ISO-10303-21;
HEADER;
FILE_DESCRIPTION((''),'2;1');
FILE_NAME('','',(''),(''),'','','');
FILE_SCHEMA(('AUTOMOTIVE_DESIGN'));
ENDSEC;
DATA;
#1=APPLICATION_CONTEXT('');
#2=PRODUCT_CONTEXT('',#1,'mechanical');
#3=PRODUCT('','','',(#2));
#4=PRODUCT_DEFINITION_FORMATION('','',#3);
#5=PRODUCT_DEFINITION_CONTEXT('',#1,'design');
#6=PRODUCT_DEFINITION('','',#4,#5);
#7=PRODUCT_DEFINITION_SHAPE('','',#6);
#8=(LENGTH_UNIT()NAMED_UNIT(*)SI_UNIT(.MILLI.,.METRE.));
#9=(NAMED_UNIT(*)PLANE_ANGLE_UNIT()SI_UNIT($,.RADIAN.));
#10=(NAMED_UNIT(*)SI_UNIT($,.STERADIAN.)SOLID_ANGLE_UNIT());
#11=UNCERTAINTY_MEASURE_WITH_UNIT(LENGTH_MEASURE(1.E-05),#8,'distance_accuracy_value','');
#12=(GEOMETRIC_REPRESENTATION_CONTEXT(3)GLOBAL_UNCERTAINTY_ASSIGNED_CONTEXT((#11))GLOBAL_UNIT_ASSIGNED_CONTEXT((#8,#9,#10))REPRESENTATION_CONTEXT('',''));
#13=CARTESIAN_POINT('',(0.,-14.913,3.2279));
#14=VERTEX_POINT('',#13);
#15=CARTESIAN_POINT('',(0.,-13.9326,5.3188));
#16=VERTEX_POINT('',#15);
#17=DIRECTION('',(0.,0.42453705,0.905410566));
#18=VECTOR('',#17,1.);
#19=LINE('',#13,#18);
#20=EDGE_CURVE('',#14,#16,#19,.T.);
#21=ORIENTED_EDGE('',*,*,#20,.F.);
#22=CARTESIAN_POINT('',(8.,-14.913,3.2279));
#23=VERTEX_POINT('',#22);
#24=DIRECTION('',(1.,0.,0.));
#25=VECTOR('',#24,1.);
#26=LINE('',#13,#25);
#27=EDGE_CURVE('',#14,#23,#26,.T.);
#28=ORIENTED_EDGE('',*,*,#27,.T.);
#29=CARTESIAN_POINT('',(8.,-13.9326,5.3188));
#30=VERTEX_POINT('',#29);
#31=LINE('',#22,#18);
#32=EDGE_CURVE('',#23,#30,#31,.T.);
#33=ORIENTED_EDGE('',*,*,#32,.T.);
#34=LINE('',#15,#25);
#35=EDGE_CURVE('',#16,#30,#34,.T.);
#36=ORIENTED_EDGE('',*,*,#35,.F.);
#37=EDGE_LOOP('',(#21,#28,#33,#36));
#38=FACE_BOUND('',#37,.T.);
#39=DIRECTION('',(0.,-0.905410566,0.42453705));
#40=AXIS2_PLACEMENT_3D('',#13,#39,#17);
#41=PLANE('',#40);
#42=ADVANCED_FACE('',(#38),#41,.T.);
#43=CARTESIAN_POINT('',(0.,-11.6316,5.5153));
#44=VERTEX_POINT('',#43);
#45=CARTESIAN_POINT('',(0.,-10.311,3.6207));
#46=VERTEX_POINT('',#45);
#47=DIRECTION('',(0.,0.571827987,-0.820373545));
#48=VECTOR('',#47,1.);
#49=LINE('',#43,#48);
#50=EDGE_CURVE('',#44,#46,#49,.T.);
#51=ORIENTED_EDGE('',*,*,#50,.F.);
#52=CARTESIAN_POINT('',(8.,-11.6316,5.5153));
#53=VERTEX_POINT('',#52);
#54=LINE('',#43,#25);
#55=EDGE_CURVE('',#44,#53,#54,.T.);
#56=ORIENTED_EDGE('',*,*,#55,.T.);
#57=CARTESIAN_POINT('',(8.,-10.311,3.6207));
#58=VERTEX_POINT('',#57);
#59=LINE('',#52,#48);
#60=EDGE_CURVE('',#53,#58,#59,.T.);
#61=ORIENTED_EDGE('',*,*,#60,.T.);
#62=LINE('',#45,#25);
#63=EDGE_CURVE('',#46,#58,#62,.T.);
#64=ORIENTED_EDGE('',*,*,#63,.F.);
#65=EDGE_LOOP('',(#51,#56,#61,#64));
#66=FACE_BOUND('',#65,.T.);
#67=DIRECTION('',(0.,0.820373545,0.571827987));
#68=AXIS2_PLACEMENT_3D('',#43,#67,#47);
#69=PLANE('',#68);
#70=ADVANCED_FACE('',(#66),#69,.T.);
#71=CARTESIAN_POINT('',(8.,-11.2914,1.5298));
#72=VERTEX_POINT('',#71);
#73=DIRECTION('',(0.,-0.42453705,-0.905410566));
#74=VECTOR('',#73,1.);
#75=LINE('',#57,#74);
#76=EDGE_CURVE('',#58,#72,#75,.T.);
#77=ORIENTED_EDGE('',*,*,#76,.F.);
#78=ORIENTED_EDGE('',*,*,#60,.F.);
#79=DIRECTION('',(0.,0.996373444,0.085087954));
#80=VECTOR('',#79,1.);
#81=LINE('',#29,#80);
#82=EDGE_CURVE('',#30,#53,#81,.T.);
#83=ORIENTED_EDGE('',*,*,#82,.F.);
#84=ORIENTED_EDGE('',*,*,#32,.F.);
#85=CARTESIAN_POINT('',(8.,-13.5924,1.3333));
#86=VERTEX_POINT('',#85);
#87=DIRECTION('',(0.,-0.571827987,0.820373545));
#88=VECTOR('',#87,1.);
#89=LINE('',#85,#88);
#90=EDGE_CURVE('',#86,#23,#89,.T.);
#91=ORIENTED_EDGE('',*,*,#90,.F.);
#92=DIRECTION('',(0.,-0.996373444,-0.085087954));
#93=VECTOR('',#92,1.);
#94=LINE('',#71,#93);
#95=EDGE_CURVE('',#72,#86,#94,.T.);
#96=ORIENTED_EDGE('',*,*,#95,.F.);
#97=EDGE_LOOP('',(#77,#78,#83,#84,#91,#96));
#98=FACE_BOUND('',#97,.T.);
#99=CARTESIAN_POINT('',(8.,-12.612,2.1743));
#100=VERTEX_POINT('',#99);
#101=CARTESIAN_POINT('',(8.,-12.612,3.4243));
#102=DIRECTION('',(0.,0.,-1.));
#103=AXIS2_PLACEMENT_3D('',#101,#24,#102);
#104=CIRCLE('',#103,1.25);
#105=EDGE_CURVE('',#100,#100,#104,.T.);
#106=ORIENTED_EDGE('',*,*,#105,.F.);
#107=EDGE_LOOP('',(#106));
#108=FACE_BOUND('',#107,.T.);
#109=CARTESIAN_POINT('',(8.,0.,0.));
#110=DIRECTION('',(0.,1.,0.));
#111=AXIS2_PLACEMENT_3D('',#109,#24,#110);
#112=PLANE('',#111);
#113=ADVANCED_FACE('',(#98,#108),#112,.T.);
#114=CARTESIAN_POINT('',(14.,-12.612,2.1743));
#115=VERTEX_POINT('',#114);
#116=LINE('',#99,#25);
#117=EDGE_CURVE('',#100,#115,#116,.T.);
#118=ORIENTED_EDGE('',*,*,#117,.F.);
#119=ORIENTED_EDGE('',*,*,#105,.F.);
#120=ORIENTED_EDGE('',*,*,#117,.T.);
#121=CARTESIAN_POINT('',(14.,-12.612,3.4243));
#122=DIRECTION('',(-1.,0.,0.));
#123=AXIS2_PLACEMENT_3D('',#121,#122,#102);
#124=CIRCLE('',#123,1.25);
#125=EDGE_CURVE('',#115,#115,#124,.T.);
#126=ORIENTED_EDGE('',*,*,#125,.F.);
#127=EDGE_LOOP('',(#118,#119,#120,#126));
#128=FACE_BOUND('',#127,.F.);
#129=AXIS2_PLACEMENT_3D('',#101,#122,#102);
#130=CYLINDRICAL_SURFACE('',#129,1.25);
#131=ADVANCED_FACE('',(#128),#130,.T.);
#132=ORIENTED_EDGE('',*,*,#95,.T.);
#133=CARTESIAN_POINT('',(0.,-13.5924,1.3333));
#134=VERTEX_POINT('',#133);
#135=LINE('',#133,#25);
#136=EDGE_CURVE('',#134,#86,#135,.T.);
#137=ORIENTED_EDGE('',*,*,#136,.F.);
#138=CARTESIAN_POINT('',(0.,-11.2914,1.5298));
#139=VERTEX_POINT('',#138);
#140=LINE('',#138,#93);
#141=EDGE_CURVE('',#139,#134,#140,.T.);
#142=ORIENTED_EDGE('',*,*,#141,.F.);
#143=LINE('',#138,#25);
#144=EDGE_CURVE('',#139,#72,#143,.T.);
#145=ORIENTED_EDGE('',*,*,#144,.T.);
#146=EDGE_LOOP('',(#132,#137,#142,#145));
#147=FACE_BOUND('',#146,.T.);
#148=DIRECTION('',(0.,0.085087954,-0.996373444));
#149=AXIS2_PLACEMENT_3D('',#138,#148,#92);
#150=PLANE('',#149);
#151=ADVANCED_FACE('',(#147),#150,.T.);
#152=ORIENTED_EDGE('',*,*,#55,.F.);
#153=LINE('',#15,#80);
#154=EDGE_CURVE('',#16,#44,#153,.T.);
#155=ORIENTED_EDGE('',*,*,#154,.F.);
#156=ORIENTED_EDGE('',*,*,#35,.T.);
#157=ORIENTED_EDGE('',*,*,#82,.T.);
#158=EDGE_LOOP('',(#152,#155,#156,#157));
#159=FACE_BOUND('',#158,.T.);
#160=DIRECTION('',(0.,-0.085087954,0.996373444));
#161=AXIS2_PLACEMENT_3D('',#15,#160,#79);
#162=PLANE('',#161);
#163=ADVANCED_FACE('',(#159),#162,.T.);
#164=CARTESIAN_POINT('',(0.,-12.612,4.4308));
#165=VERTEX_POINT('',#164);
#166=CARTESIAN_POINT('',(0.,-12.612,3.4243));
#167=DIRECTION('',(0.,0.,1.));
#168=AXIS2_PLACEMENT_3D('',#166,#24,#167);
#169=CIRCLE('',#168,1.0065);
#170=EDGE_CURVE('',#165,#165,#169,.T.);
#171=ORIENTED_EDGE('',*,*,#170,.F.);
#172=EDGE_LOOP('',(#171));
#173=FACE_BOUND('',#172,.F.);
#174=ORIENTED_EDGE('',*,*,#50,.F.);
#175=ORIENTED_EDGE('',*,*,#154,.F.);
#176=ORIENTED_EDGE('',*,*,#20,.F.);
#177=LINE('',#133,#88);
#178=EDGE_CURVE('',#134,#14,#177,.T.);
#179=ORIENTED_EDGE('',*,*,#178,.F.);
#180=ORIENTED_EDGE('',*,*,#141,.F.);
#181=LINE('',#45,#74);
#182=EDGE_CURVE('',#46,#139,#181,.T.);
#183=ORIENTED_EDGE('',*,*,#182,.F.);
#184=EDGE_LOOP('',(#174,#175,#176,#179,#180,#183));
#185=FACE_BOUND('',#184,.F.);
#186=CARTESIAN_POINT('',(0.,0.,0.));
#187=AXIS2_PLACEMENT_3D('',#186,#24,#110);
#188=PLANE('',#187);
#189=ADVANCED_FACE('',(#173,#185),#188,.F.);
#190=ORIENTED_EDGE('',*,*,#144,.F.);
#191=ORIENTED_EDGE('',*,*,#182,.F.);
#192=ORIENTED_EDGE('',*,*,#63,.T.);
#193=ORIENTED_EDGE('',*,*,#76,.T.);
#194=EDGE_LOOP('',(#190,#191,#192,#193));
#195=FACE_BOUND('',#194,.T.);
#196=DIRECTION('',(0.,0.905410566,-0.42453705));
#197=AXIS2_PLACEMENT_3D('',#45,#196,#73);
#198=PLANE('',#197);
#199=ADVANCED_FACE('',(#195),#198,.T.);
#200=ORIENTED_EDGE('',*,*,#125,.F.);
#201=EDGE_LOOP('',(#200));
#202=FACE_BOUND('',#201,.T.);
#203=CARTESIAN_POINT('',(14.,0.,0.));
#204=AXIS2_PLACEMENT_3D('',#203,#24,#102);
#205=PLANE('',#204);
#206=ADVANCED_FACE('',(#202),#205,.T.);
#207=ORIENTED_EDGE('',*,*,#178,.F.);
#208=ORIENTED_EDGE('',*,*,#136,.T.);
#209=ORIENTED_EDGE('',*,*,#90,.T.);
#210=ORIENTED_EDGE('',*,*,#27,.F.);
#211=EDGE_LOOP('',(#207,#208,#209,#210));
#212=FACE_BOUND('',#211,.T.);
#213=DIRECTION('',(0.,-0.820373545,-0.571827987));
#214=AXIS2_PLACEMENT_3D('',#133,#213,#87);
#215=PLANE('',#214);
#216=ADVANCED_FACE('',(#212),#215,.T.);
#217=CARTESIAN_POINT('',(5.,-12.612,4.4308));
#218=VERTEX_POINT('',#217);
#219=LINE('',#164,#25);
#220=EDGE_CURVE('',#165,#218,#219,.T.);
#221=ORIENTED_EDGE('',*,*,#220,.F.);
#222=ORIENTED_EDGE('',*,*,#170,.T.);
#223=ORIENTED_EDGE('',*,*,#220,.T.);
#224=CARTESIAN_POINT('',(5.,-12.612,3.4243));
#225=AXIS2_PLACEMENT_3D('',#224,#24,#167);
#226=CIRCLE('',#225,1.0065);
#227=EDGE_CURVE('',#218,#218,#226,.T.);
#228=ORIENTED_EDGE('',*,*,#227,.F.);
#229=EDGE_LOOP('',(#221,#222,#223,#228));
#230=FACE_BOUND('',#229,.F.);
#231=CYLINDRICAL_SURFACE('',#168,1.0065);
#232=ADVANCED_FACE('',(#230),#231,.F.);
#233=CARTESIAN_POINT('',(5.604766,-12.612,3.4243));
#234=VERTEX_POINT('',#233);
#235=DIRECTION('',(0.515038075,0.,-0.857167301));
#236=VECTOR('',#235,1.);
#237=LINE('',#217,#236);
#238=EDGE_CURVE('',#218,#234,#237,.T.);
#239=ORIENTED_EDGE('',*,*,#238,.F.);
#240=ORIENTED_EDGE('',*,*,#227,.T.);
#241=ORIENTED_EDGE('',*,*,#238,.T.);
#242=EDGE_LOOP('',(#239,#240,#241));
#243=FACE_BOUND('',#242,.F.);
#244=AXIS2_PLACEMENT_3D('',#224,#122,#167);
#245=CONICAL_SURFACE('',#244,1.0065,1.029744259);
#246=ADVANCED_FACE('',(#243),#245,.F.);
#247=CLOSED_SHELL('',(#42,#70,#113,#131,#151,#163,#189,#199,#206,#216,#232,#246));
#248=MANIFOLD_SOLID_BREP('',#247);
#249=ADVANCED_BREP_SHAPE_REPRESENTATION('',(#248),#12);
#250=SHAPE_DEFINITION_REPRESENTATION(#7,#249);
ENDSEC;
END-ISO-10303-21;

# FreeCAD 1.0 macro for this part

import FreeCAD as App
import Part
import Sketcher
Q = App.Units.Quantity


def add_polygon(sketch, points):
    """Adds a closed chain of lines whose ends are joined by coincident constraints."""
    first, n = sketch.GeometryCount, len(points)
    for a, b in zip(points, points[1:] + points[:1]):
        sketch.addGeometry(Part.LineSegment(App.Vector(*a, 0), App.Vector(*b, 0)), False)
    for i in range(n):
        sketch.addConstraint(Sketcher.Constraint("Coincident", first + i, 2, first + (i + 1) % n, 1))

doc = App.newDocument("Part")
body = doc.addObject("PartDesign::Body", "Body")

# Sketch on YZ plane
sketch1 = body.newObject("Sketcher::SketchObject", "Sketch")
sketch1.AttachmentSupport = (doc.getObject("YZ_Plane"), [""])
sketch1.MapMode = "FlatFace"
add_polygon(sketch1, [(-11.2914, 1.5298), (-10.311, 3.6207), (-11.6316, 5.5153), (-13.9326, 5.3188), (-14.913, 3.2279), (-13.5924, 1.3333)])  # lines 0-5
sketch1.addConstraint(Sketcher.Constraint("Parallel", 0, 3))
sketch1.addConstraint(Sketcher.Constraint("Parallel", 1, 4))
sketch1.addConstraint(Sketcher.Constraint("Parallel", 2, 5))
sketch1.addConstraint(Sketcher.Constraint("Equal", 0, 1))
sketch1.addConstraint(Sketcher.Constraint("Equal", 1, 2))
sketch1.addConstraint(Sketcher.Constraint("Equal", 2, 3))
sketch1.addConstraint(Sketcher.Constraint("Angle", 2, Q("-175.119 deg")))
sketch1.addConstraint(Sketcher.Constraint("DistanceX", 0, 2, -1, 1, 10.311))
sketch1.addConstraint(Sketcher.Constraint("DistanceX", 3, 2, -1, 1, 14.913))
sketch1.addConstraint(Sketcher.Constraint("DistanceY", -1, 1, 3, 2, 3.228))
sketch1.addConstraint(Sketcher.Constraint("DistanceX", 2, 2, 1, 2, 2.301))
sketch1.addConstraint(Sketcher.Constraint("DistanceY", 0, 2, 2, 2, 1.698))
pad1 = body.newObject("PartDesign::Pad", "Pad")
pad1.Profile = sketch1
pad1.Length = 8

# Sketch on YZ plane
sketch2 = body.newObject("Sketcher::SketchObject", "Sketch001")
sketch2.AttachmentSupport = (doc.getObject("YZ_Plane"), [""])
sketch2.MapMode = "FlatFace"
sketch2.AttachmentOffset = App.Placement(App.Vector(0, 0, 8), App.Rotation())
sketch2.addGeometry(Part.Circle(App.Vector(-12.612, 3.4243, 0), App.Vector(0, 0, 1), 1.25), False)
sketch2.addConstraint(Sketcher.Constraint("Diameter", 0, 2.5))
sketch2.addConstraint(Sketcher.Constraint("DistanceX", 0, 3, -1, 1, 12.612))
sketch2.addConstraint(Sketcher.Constraint("DistanceY", -1, 1, 0, 3, 3.4243))
pad2 = body.newObject("PartDesign::Pad", "Pad001")
pad2.Profile = sketch2
pad2.Length = 6

# Sketch on YZ plane
sketch3 = body.newObject("Sketcher::SketchObject", "Sketch002")
sketch3.AttachmentSupport = (doc.getObject("YZ_Plane"), [""])
sketch3.MapMode = "FlatFace"
sketch3.addGeometry(Part.Circle(App.Vector(-12.612, 3.4243, 0), App.Vector(0, 0, 1), 1.0065), False)
sketch3.addConstraint(Sketcher.Constraint("Diameter", 0, 2.013))
sketch3.addConstraint(Sketcher.Constraint("DistanceX", 0, 3, -1, 1, 12.612))
sketch3.addConstraint(Sketcher.Constraint("DistanceY", -1, 1, 0, 3, 3.4243))
doc.recompute()
hole = body.newObject("PartDesign::Hole", "Hole")
hole.Profile = sketch3
hole.ThreadType = "None"
hole.Diameter = 2.013
hole.DepthType = "Dimension"
hole.Depth = 5
hole.DrillPoint = "Angled"
hole.DrillPointAngle = 118
hole.Reversed = True

doc.recompute()
